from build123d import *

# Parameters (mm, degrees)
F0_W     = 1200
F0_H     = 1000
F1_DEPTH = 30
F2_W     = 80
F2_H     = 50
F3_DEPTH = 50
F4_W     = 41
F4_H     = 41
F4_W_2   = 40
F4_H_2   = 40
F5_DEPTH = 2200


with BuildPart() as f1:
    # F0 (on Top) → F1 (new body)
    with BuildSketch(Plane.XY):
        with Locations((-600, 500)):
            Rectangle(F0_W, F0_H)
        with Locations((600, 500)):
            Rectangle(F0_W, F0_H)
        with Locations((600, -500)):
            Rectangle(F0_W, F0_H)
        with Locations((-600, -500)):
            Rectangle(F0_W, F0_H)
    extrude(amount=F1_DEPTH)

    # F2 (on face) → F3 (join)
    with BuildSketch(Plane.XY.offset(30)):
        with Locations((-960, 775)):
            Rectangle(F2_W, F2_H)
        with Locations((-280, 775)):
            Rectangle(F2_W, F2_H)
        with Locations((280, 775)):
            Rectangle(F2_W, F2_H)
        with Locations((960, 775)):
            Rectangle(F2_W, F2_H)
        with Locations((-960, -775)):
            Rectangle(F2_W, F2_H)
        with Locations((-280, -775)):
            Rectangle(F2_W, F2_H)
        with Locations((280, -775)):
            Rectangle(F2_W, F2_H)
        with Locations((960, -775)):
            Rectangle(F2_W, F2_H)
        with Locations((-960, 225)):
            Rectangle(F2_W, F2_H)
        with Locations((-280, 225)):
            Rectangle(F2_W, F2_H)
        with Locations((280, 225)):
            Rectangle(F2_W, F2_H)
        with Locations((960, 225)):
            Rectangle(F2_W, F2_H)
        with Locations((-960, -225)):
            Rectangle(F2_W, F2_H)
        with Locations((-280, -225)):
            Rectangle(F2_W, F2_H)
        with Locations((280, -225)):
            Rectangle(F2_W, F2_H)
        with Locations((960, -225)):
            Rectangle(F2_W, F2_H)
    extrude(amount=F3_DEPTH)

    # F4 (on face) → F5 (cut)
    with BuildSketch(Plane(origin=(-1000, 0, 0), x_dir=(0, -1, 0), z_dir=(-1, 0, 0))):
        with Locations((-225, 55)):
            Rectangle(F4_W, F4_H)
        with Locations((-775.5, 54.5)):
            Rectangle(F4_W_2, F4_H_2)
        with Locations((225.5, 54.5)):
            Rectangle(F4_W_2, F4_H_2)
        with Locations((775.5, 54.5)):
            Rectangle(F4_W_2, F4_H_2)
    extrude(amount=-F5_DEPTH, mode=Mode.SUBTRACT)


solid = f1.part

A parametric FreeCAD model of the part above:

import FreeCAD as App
import Part
import Sketcher
from FreeCAD import Vector
Q = App.Units.Quantity

doc = App.newDocument("Part")
body = doc.addObject("PartDesign::Body", "Body")

# Sketch on XY plane
sketch1 = body.newObject("Sketcher::SketchObject", "Sketch")
sketch1.AttachmentSupport = (doc.getObject("XY_Plane"), [""])
sketch1.MapMode = "FlatFace"
sketch1.addGeometry([
    Part.LineSegment(Vector(-1200, 1000, 0), Vector(-1200, -1000, 0)),
    Part.LineSegment(Vector(-1200, -1000, 0), Vector(1200, -1000, 0)),
    Part.LineSegment(Vector(1200, -1000, 0), Vector(1200, 1000, 0)),
    Part.LineSegment(Vector(1200, 1000, 0), Vector(-1200, 1000, 0)),
], False)
sketch1.addConstraint([
    Sketcher.Constraint("Coincident", 0, 2, 1, 1),
    Sketcher.Constraint("Coincident", 1, 2, 2, 1),
    Sketcher.Constraint("Coincident", 2, 2, 3, 1),
    Sketcher.Constraint("Coincident", 3, 2, 0, 1),
    Sketcher.Constraint("Vertical", 0),
    Sketcher.Constraint("Horizontal", 1),
    Sketcher.Constraint("Vertical", 2),
    Sketcher.Constraint("Horizontal", 3),
    Sketcher.Constraint("Symmetric", 0, 2, 2, 2, -1, 1),
    Sketcher.Constraint("DistanceX", 1, 1, 1, 2, Q("2400 mm")),
    Sketcher.Constraint("DistanceY", 0, 2, 0, 1, Q("2000 mm")),
])
pad1 = body.newObject("PartDesign::Pad", "Pad")
pad1.Profile = sketch1
pad1.Length = 30

# Sketch on XY plane
sketch2 = body.newObject("Sketcher::SketchObject", "Sketch001")
sketch2.AttachmentSupport = (doc.getObject("XY_Plane"), [""])
sketch2.MapMode = "FlatFace"
sketch2.AttachmentOffset = App.Placement(Vector(0, 0, 30), App.Rotation())
sketch2.addGeometry([
    Part.LineSegment(Vector(-1000, 800, 0), Vector(-1000, 750, 0)),  # 0
    Part.LineSegment(Vector(-1000, 750, 0), Vector(-920, 750, 0)),  # 1
    Part.LineSegment(Vector(-920, 750, 0), Vector(-920, 800, 0)),  # 2
    Part.LineSegment(Vector(-920, 800, 0), Vector(-1000, 800, 0)),  # 3
    Part.LineSegment(Vector(-320, 800, 0), Vector(-320, 750, 0)),  # 4
    Part.LineSegment(Vector(-320, 750, 0), Vector(-240, 750, 0)),  # 5
    Part.LineSegment(Vector(-240, 750, 0), Vector(-240, 800, 0)),  # 6
    Part.LineSegment(Vector(-240, 800, 0), Vector(-320, 800, 0)),  # 7
    Part.LineSegment(Vector(240, 800, 0), Vector(240, 750, 0)),  # 8
    Part.LineSegment(Vector(240, 750, 0), Vector(320, 750, 0)),  # 9
    Part.LineSegment(Vector(320, 750, 0), Vector(320, 800, 0)),  # 10
    Part.LineSegment(Vector(320, 800, 0), Vector(240, 800, 0)),  # 11
    Part.LineSegment(Vector(920, 800, 0), Vector(920, 750, 0)),  # 12
    Part.LineSegment(Vector(920, 750, 0), Vector(1000, 750, 0)),  # 13
    Part.LineSegment(Vector(1000, 750, 0), Vector(1000, 800, 0)),  # 14
    Part.LineSegment(Vector(1000, 800, 0), Vector(920, 800, 0)),  # 15
    Part.LineSegment(Vector(-1000, -750, 0), Vector(-1000, -800, 0)),  # 16
    Part.LineSegment(Vector(-1000, -800, 0), Vector(-920, -800, 0)),  # 17
    Part.LineSegment(Vector(-920, -800, 0), Vector(-920, -750, 0)),  # 18
    Part.LineSegment(Vector(-920, -750, 0), Vector(-1000, -750, 0)),  # 19
    Part.LineSegment(Vector(-320, -750, 0), Vector(-320, -800, 0)),  # 20
    Part.LineSegment(Vector(-320, -800, 0), Vector(-240, -800, 0)),  # 21
    Part.LineSegment(Vector(-240, -800, 0), Vector(-240, -750, 0)),  # 22
    Part.LineSegment(Vector(-240, -750, 0), Vector(-320, -750, 0)),  # 23
    Part.LineSegment(Vector(240, -750, 0), Vector(240, -800, 0)),  # 24
    Part.LineSegment(Vector(240, -800, 0), Vector(320, -800, 0)),  # 25
    Part.LineSegment(Vector(320, -800, 0), Vector(320, -750, 0)),  # 26
    Part.LineSegment(Vector(320, -750, 0), Vector(240, -750, 0)),  # 27
    Part.LineSegment(Vector(920, -750, 0), Vector(920, -800, 0)),  # 28
    Part.LineSegment(Vector(920, -800, 0), Vector(1000, -800, 0)),  # 29
    Part.LineSegment(Vector(1000, -800, 0), Vector(1000, -750, 0)),  # 30
    Part.LineSegment(Vector(1000, -750, 0), Vector(920, -750, 0)),  # 31
    Part.LineSegment(Vector(-1000, 250, 0), Vector(-1000, 200, 0)),  # 32
    Part.LineSegment(Vector(-1000, 200, 0), Vector(-920, 200, 0)),  # 33
    Part.LineSegment(Vector(-920, 200, 0), Vector(-920, 250, 0)),  # 34
    Part.LineSegment(Vector(-920, 250, 0), Vector(-1000, 250, 0)),  # 35
    Part.LineSegment(Vector(-320, 250, 0), Vector(-320, 200, 0)),  # 36
    Part.LineSegment(Vector(-320, 200, 0), Vector(-240, 200, 0)),  # 37
    Part.LineSegment(Vector(-240, 200, 0), Vector(-240, 250, 0)),  # 38
    Part.LineSegment(Vector(-240, 250, 0), Vector(-320, 250, 0)),  # 39
    Part.LineSegment(Vector(240, 250, 0), Vector(240, 200, 0)),  # 40
    Part.LineSegment(Vector(240, 200, 0), Vector(320, 200, 0)),  # 41
    Part.LineSegment(Vector(320, 200, 0), Vector(320, 250, 0)),  # 42
    Part.LineSegment(Vector(320, 250, 0), Vector(240, 250, 0)),  # 43
    Part.LineSegment(Vector(920, 250, 0), Vector(920, 200, 0)),  # 44
    Part.LineSegment(Vector(920, 200, 0), Vector(1000, 200, 0)),  # 45
    Part.LineSegment(Vector(1000, 200, 0), Vector(1000, 250, 0)),  # 46
    Part.LineSegment(Vector(1000, 250, 0), Vector(920, 250, 0)),  # 47
    Part.LineSegment(Vector(-1000, -200, 0), Vector(-1000, -250, 0)),  # 48
    Part.LineSegment(Vector(-1000, -250, 0), Vector(-920, -250, 0)),  # 49
    Part.LineSegment(Vector(-920, -250, 0), Vector(-920, -200, 0)),  # 50
    Part.LineSegment(Vector(-920, -200, 0), Vector(-1000, -200, 0)),  # 51
    Part.LineSegment(Vector(-320, -200, 0), Vector(-320, -250, 0)),  # 52
    Part.LineSegment(Vector(-320, -250, 0), Vector(-240, -250, 0)),  # 53
    Part.LineSegment(Vector(-240, -250, 0), Vector(-240, -200, 0)),  # 54
    Part.LineSegment(Vector(-240, -200, 0), Vector(-320, -200, 0)),  # 55
    Part.LineSegment(Vector(240, -200, 0), Vector(240, -250, 0)),  # 56
    Part.LineSegment(Vector(240, -250, 0), Vector(320, -250, 0)),  # 57
    Part.LineSegment(Vector(320, -250, 0), Vector(320, -200, 0)),  # 58
    Part.LineSegment(Vector(320, -200, 0), Vector(240, -200, 0)),  # 59
    Part.LineSegment(Vector(920, -200, 0), Vector(920, -250, 0)),  # 60
    Part.LineSegment(Vector(920, -250, 0), Vector(1000, -250, 0)),  # 61
    Part.LineSegment(Vector(1000, -250, 0), Vector(1000, -200, 0)),  # 62
    Part.LineSegment(Vector(1000, -200, 0), Vector(920, -200, 0)),  # 63
], False)
sketch2.addConstraint([
    Sketcher.Constraint("Coincident", 0, 2, 1, 1),
    Sketcher.Constraint("Coincident", 1, 2, 2, 1),
    Sketcher.Constraint("Coincident", 2, 2, 3, 1),
    Sketcher.Constraint("Coincident", 3, 2, 0, 1),
    Sketcher.Constraint("Coincident", 4, 2, 5, 1),
    Sketcher.Constraint("Coincident", 5, 2, 6, 1),
    Sketcher.Constraint("Coincident", 6, 2, 7, 1),
    Sketcher.Constraint("Coincident", 7, 2, 4, 1),
    Sketcher.Constraint("Coincident", 8, 2, 9, 1),
    Sketcher.Constraint("Coincident", 9, 2, 10, 1),
    Sketcher.Constraint("Coincident", 10, 2, 11, 1),
    Sketcher.Constraint("Coincident", 11, 2, 8, 1),
    Sketcher.Constraint("Coincident", 12, 2, 13, 1),
    Sketcher.Constraint("Coincident", 13, 2, 14, 1),
    Sketcher.Constraint("Coincident", 14, 2, 15, 1),
    Sketcher.Constraint("Coincident", 15, 2, 12, 1),
    Sketcher.Constraint("Coincident", 16, 2, 17, 1),
    Sketcher.Constraint("Coincident", 17, 2, 18, 1),
    Sketcher.Constraint("Coincident", 18, 2, 19, 1),
    Sketcher.Constraint("Coincident", 19, 2, 16, 1),
    Sketcher.Constraint("Coincident", 20, 2, 21, 1),
    Sketcher.Constraint("Coincident", 21, 2, 22, 1),
    Sketcher.Constraint("Coincident", 22, 2, 23, 1),
    Sketcher.Constraint("Coincident", 23, 2, 20, 1),
    Sketcher.Constraint("Coincident", 24, 2, 25, 1),
    Sketcher.Constraint("Coincident", 25, 2, 26, 1),
    Sketcher.Constraint("Coincident", 26, 2, 27, 1),
    Sketcher.Constraint("Coincident", 27, 2, 24, 1),
    Sketcher.Constraint("Coincident", 28, 2, 29, 1),
    Sketcher.Constraint("Coincident", 29, 2, 30, 1),
    Sketcher.Constraint("Coincident", 30, 2, 31, 1),
    Sketcher.Constraint("Coincident", 31, 2, 28, 1),
    Sketcher.Constraint("Coincident", 32, 2, 33, 1),
    Sketcher.Constraint("Coincident", 33, 2, 34, 1),
    Sketcher.Constraint("Coincident", 34, 2, 35, 1),
    Sketcher.Constraint("Coincident", 35, 2, 32, 1),
    Sketcher.Constraint("Coincident", 36, 2, 37, 1),
    Sketcher.Constraint("Coincident", 37, 2, 38, 1),
    Sketcher.Constraint("Coincident", 38, 2, 39, 1),
    Sketcher.Constraint("Coincident", 39, 2, 36, 1),
    Sketcher.Constraint("Coincident", 40, 2, 41, 1),
    Sketcher.Constraint("Coincident", 41, 2, 42, 1),
    Sketcher.Constraint("Coincident", 42, 2, 43, 1),
    Sketcher.Constraint("Coincident", 43, 2, 40, 1),
    Sketcher.Constraint("Coincident", 44, 2, 45, 1),
    Sketcher.Constraint("Coincident", 45, 2, 46, 1),
    Sketcher.Constraint("Coincident", 46, 2, 47, 1),
    Sketcher.Constraint("Coincident", 47, 2, 44, 1),
    Sketcher.Constraint("Coincident", 48, 2, 49, 1),
    Sketcher.Constraint("Coincident", 49, 2, 50, 1),
    Sketcher.Constraint("Coincident", 50, 2, 51, 1),
    Sketcher.Constraint("Coincident", 51, 2, 48, 1),
    Sketcher.Constraint("Coincident", 52, 2, 53, 1),
    Sketcher.Constraint("Coincident", 53, 2, 54, 1),
    Sketcher.Constraint("Coincident", 54, 2, 55, 1),
    Sketcher.Constraint("Coincident", 55, 2, 52, 1),
    Sketcher.Constraint("Coincident", 56, 2, 57, 1),
    Sketcher.Constraint("Coincident", 57, 2, 58, 1),
    Sketcher.Constraint("Coincident", 58, 2, 59, 1),
    Sketcher.Constraint("Coincident", 59, 2, 56, 1),
    Sketcher.Constraint("Coincident", 60, 2, 61, 1),
    Sketcher.Constraint("Coincident", 61, 2, 62, 1),
    Sketcher.Constraint("Coincident", 62, 2, 63, 1),
    Sketcher.Constraint("Coincident", 63, 2, 60, 1),
    Sketcher.Constraint("Vertical", 0),
    Sketcher.Constraint("Horizontal", 1),
    Sketcher.Constraint("Vertical", 2),
    Sketcher.Constraint("Horizontal", 3),
    Sketcher.Constraint("Vertical", 4),
    Sketcher.Constraint("Horizontal", 5),
    Sketcher.Constraint("Vertical", 6),
    Sketcher.Constraint("Horizontal", 7),
    Sketcher.Constraint("Vertical", 8),
    Sketcher.Constraint("Horizontal", 9),
    Sketcher.Constraint("Vertical", 10),
    Sketcher.Constraint("Horizontal", 11),
    Sketcher.Constraint("Vertical", 12),
    Sketcher.Constraint("Horizontal", 13),
    Sketcher.Constraint("Vertical", 14),
    Sketcher.Constraint("Horizontal", 15),
    Sketcher.Constraint("Vertical", 16),
    Sketcher.Constraint("Horizontal", 17),
    Sketcher.Constraint("Vertical", 18),
    Sketcher.Constraint("Horizontal", 19),
    Sketcher.Constraint("Vertical", 20),
    Sketcher.Constraint("Horizontal", 21),
    Sketcher.Constraint("Vertical", 22),
    Sketcher.Constraint("Horizontal", 23),
    Sketcher.Constraint("Vertical", 24),
    Sketcher.Constraint("Horizontal", 25),
    Sketcher.Constraint("Vertical", 26),
    Sketcher.Constraint("Horizontal", 27),
    Sketcher.Constraint("Vertical", 28),
    Sketcher.Constraint("Horizontal", 29),
    Sketcher.Constraint("Vertical", 30),
    Sketcher.Constraint("Horizontal", 31),
    Sketcher.Constraint("Vertical", 32),
    Sketcher.Constraint("Horizontal", 33),
    Sketcher.Constraint("Vertical", 34),
    Sketcher.Constraint("Horizontal", 35),
    Sketcher.Constraint("Vertical", 36),
    Sketcher.Constraint("Horizontal", 37),
    Sketcher.Constraint("Vertical", 38),
    Sketcher.Constraint("Horizontal", 39),
    Sketcher.Constraint("Vertical", 40),
    Sketcher.Constraint("Horizontal", 41),
    Sketcher.Constraint("Vertical", 42),
    Sketcher.Constraint("Horizontal", 43),
    Sketcher.Constraint("Vertical", 44),
    Sketcher.Constraint("Horizontal", 45),
    Sketcher.Constraint("Vertical", 46),
    Sketcher.Constraint("Horizontal", 47),
    Sketcher.Constraint("Vertical", 48),
    Sketcher.Constraint("Horizontal", 49),
    Sketcher.Constraint("Vertical", 50),
    Sketcher.Constraint("Horizontal", 51),
    Sketcher.Constraint("Vertical", 52),
    Sketcher.Constraint("Horizontal", 53),
    Sketcher.Constraint("Vertical", 54),
    Sketcher.Constraint("Horizontal", 55),
    Sketcher.Constraint("Vertical", 56),
    Sketcher.Constraint("Horizontal", 57),
    Sketcher.Constraint("Vertical", 58),
    Sketcher.Constraint("Horizontal", 59),
    Sketcher.Constraint("Vertical", 60),
    Sketcher.Constraint("Horizontal", 61),
    Sketcher.Constraint("Vertical", 62),
    Sketcher.Constraint("Horizontal", 63),
    Sketcher.Constraint("Symmetric", 14, 2, 16, 2, -1, 1),
    Sketcher.Constraint("Symmetric", 12, 2, 18, 2, -1, 1),
    Sketcher.Constraint("Symmetric", 10, 2, 20, 2, -1, 1),
    Sketcher.Constraint("Symmetric", 8, 2, 22, 2, -1, 1),
    Sketcher.Constraint("Symmetric", 6, 2, 24, 2, -1, 1),
    Sketcher.Constraint("Symmetric", 4, 2, 26, 2, -1, 1),
    Sketcher.Constraint("Symmetric", 2, 2, 28, 2, -1, 1),
    Sketcher.Constraint("Symmetric", 0, 2, 30, 2, -1, 1),
    Sketcher.Constraint("Symmetric", 46, 2, 48, 2, -1, 1),
    Sketcher.Constraint("Symmetric", 44, 2, 50, 2, -1, 1),
    Sketcher.Constraint("Symmetric", 42, 2, 52, 2, -1, 1),
    Sketcher.Constraint("Symmetric", 40, 2, 54, 2, -1, 1),
    Sketcher.Constraint("Symmetric", 38, 2, 56, 2, -1, 1),
    Sketcher.Constraint("Symmetric", 36, 2, 58, 2, -1, 1),
    Sketcher.Constraint("Symmetric", 34, 2, 60, 2, -1, 1),
    Sketcher.Constraint("Symmetric", 32, 2, 62, 2, -1, 1),
    Sketcher.Constraint("Symmetric", 5, 2, 8, 2, -2),
    Sketcher.Constraint("Symmetric", 7, 2, 10, 2, -2),
    Sketcher.Constraint("Symmetric", 1, 2, 12, 2, -2),
    Sketcher.Constraint("Symmetric", 3, 2, 14, 2, -2),
    Sketcher.Constraint("Symmetric", 37, 2, 40, 2, -2),
    Sketcher.Constraint("Symmetric", 39, 2, 42, 2, -2),
    Sketcher.Constraint("Symmetric", 33, 2, 44, 2, -2),
    Sketcher.Constraint("Symmetric", 35, 2, 46, 2, -2),
    Sketcher.Constraint("Horizontal", 1, 2, 4, 2),
    Sketcher.Constraint("Horizontal", 3, 2, 6, 2),
    Sketcher.Constraint("Horizontal", 33, 2, 36, 2),
    Sketcher.Constraint("Horizontal", 35, 2, 38, 2),
    Sketcher.Constraint("Vertical", 19, 2, 32, 2),
    Sketcher.Constraint("Vertical", 18, 2, 33, 2),
    Sketcher.Constraint("Vertical", 23, 2, 36, 2),
    Sketcher.Constraint("Vertical", 22, 2, 37, 2),
    Sketcher.Constraint("Equal", 3, 5),
    Sketcher.Constraint("Equal", 30, 32),
    Sketcher.Constraint("DistanceX", 1, 1, 1, 2, Q("80 mm")),
    Sketcher.Constraint("DistanceY", 0, 2, 0, 1, Q("50 mm")),
    Sketcher.Constraint("DistanceX", 0, 2, -1, 1, Q("1000 mm")),
    Sketcher.Constraint("DistanceY", -1, 1, 0, 2, Q("750 mm")),
    Sketcher.Constraint("DistanceX", 4, 2, -1, 1, Q("320 mm")),
    Sketcher.Constraint("DistanceY", -1, 1, 32, 2, Q("200 mm")),
])
pad2 = body.newObject("PartDesign::Pad", "Pad001")
pad2.Profile = sketch2
pad2.Length = 50

# Sketch on YZ plane
sketch3 = body.newObject("Sketcher::SketchObject", "Sketch002")
sketch3.AttachmentSupport = (doc.getObject("YZ_Plane"), [""])
sketch3.MapMode = "FlatFace"
sketch3.AttachmentOffset = App.Placement(Vector(0, 0, -1000), App.Rotation())
sketch3.addGeometry([
    Part.LineSegment(Vector(246, 76, 0), Vector(246, 34, 0)),  # 0
    Part.LineSegment(Vector(246, 34, 0), Vector(204, 34, 0)),  # 1
    Part.LineSegment(Vector(204, 34, 0), Vector(204, 76, 0)),  # 2
    Part.LineSegment(Vector(204, 76, 0), Vector(246, 76, 0)),  # 3
    Part.LineSegment(Vector(796, 74, 0), Vector(796, 34, 0)),  # 4
    Part.LineSegment(Vector(796, 34, 0), Vector(756, 34, 0)),  # 5
    Part.LineSegment(Vector(756, 34, 0), Vector(756, 74, 0)),  # 6
    Part.LineSegment(Vector(756, 74, 0), Vector(796, 74, 0)),  # 7
    Part.LineSegment(Vector(-206, 74, 0), Vector(-206, 34, 0)),  # 8
    Part.LineSegment(Vector(-206, 34, 0), Vector(-246, 34, 0)),  # 9
    Part.LineSegment(Vector(-246, 34, 0), Vector(-246, 74, 0)),  # 10
    Part.LineSegment(Vector(-246, 74, 0), Vector(-206, 74, 0)),  # 11
    Part.LineSegment(Vector(-756, 74, 0), Vector(-756, 34, 0)),  # 12
    Part.LineSegment(Vector(-756, 34, 0), Vector(-796, 34, 0)),  # 13
    Part.LineSegment(Vector(-796, 34, 0), Vector(-796, 74, 0)),  # 14
    Part.LineSegment(Vector(-796, 74, 0), Vector(-756, 74, 0)),  # 15
], False)
sketch3.addConstraint([
    Sketcher.Constraint("Coincident", 0, 2, 1, 1),
    Sketcher.Constraint("Coincident", 1, 2, 2, 1),
    Sketcher.Constraint("Coincident", 2, 2, 3, 1),
    Sketcher.Constraint("Coincident", 3, 2, 0, 1),
    Sketcher.Constraint("Coincident", 4, 2, 5, 1),
    Sketcher.Constraint("Coincident", 5, 2, 6, 1),
    Sketcher.Constraint("Coincident", 6, 2, 7, 1),
    Sketcher.Constraint("Coincident", 7, 2, 4, 1),
    Sketcher.Constraint("Coincident", 8, 2, 9, 1),
    Sketcher.Constraint("Coincident", 9, 2, 10, 1),
    Sketcher.Constraint("Coincident", 10, 2, 11, 1),
    Sketcher.Constraint("Coincident", 11, 2, 8, 1),
    Sketcher.Constraint("Coincident", 12, 2, 13, 1),
    Sketcher.Constraint("Coincident", 13, 2, 14, 1),
    Sketcher.Constraint("Coincident", 14, 2, 15, 1),
    Sketcher.Constraint("Coincident", 15, 2, 12, 1),
    Sketcher.Constraint("Vertical", 0),
    Sketcher.Constraint("Horizontal", 1),
    Sketcher.Constraint("Vertical", 2),
    Sketcher.Constraint("Horizontal", 3),
    Sketcher.Constraint("Vertical", 4),
    Sketcher.Constraint("Horizontal", 5),
    Sketcher.Constraint("Vertical", 6),
    Sketcher.Constraint("Horizontal", 7),
    Sketcher.Constraint("Vertical", 8),
    Sketcher.Constraint("Horizontal", 9),
    Sketcher.Constraint("Vertical", 10),
    Sketcher.Constraint("Horizontal", 11),
    Sketcher.Constraint("Vertical", 12),
    Sketcher.Constraint("Horizontal", 13),
    Sketcher.Constraint("Vertical", 14),
    Sketcher.Constraint("Horizontal", 15),
    Sketcher.Constraint("Symmetric", 0, 2, 9, 2, -2),
    Sketcher.Constraint("Symmetric", 5, 2, 12, 2, -2),
    Sketcher.Constraint("Symmetric", 7, 2, 14, 2, -2),
    Sketcher.Constraint("Horizontal", 1, 2, 4, 2),
    Sketcher.Constraint("Horizontal", 7, 2, 10, 2),
    Sketcher.Constraint("Equal", 7, 9),
    Sketcher.Constraint("Equal", 3, 0),
    Sketcher.Constraint("Equal", 15, 4),
    Sketcher.Constraint("DistanceX", 1, 2, 1, 1, Q("41 mm")),
    Sketcher.Constraint("DistanceX", 5, 2, 5, 1, Q("40 mm")),
    Sketcher.Constraint("DistanceX", 0, 2, 4, 2, Q("550 mm")),
    Sketcher.Constraint("DistanceX", 8, 2, 1, 2, Q("410 mm")),
    Sketcher.Constraint("DistanceY", -1, 1, 0, 2, Q("34.5 mm")),
])
pocket1 = body.newObject("PartDesign::Pocket", "Pocket")
pocket1.Profile = sketch3
pocket1.Length = 2200
pocket1.Reversed = True

doc.recompute()
